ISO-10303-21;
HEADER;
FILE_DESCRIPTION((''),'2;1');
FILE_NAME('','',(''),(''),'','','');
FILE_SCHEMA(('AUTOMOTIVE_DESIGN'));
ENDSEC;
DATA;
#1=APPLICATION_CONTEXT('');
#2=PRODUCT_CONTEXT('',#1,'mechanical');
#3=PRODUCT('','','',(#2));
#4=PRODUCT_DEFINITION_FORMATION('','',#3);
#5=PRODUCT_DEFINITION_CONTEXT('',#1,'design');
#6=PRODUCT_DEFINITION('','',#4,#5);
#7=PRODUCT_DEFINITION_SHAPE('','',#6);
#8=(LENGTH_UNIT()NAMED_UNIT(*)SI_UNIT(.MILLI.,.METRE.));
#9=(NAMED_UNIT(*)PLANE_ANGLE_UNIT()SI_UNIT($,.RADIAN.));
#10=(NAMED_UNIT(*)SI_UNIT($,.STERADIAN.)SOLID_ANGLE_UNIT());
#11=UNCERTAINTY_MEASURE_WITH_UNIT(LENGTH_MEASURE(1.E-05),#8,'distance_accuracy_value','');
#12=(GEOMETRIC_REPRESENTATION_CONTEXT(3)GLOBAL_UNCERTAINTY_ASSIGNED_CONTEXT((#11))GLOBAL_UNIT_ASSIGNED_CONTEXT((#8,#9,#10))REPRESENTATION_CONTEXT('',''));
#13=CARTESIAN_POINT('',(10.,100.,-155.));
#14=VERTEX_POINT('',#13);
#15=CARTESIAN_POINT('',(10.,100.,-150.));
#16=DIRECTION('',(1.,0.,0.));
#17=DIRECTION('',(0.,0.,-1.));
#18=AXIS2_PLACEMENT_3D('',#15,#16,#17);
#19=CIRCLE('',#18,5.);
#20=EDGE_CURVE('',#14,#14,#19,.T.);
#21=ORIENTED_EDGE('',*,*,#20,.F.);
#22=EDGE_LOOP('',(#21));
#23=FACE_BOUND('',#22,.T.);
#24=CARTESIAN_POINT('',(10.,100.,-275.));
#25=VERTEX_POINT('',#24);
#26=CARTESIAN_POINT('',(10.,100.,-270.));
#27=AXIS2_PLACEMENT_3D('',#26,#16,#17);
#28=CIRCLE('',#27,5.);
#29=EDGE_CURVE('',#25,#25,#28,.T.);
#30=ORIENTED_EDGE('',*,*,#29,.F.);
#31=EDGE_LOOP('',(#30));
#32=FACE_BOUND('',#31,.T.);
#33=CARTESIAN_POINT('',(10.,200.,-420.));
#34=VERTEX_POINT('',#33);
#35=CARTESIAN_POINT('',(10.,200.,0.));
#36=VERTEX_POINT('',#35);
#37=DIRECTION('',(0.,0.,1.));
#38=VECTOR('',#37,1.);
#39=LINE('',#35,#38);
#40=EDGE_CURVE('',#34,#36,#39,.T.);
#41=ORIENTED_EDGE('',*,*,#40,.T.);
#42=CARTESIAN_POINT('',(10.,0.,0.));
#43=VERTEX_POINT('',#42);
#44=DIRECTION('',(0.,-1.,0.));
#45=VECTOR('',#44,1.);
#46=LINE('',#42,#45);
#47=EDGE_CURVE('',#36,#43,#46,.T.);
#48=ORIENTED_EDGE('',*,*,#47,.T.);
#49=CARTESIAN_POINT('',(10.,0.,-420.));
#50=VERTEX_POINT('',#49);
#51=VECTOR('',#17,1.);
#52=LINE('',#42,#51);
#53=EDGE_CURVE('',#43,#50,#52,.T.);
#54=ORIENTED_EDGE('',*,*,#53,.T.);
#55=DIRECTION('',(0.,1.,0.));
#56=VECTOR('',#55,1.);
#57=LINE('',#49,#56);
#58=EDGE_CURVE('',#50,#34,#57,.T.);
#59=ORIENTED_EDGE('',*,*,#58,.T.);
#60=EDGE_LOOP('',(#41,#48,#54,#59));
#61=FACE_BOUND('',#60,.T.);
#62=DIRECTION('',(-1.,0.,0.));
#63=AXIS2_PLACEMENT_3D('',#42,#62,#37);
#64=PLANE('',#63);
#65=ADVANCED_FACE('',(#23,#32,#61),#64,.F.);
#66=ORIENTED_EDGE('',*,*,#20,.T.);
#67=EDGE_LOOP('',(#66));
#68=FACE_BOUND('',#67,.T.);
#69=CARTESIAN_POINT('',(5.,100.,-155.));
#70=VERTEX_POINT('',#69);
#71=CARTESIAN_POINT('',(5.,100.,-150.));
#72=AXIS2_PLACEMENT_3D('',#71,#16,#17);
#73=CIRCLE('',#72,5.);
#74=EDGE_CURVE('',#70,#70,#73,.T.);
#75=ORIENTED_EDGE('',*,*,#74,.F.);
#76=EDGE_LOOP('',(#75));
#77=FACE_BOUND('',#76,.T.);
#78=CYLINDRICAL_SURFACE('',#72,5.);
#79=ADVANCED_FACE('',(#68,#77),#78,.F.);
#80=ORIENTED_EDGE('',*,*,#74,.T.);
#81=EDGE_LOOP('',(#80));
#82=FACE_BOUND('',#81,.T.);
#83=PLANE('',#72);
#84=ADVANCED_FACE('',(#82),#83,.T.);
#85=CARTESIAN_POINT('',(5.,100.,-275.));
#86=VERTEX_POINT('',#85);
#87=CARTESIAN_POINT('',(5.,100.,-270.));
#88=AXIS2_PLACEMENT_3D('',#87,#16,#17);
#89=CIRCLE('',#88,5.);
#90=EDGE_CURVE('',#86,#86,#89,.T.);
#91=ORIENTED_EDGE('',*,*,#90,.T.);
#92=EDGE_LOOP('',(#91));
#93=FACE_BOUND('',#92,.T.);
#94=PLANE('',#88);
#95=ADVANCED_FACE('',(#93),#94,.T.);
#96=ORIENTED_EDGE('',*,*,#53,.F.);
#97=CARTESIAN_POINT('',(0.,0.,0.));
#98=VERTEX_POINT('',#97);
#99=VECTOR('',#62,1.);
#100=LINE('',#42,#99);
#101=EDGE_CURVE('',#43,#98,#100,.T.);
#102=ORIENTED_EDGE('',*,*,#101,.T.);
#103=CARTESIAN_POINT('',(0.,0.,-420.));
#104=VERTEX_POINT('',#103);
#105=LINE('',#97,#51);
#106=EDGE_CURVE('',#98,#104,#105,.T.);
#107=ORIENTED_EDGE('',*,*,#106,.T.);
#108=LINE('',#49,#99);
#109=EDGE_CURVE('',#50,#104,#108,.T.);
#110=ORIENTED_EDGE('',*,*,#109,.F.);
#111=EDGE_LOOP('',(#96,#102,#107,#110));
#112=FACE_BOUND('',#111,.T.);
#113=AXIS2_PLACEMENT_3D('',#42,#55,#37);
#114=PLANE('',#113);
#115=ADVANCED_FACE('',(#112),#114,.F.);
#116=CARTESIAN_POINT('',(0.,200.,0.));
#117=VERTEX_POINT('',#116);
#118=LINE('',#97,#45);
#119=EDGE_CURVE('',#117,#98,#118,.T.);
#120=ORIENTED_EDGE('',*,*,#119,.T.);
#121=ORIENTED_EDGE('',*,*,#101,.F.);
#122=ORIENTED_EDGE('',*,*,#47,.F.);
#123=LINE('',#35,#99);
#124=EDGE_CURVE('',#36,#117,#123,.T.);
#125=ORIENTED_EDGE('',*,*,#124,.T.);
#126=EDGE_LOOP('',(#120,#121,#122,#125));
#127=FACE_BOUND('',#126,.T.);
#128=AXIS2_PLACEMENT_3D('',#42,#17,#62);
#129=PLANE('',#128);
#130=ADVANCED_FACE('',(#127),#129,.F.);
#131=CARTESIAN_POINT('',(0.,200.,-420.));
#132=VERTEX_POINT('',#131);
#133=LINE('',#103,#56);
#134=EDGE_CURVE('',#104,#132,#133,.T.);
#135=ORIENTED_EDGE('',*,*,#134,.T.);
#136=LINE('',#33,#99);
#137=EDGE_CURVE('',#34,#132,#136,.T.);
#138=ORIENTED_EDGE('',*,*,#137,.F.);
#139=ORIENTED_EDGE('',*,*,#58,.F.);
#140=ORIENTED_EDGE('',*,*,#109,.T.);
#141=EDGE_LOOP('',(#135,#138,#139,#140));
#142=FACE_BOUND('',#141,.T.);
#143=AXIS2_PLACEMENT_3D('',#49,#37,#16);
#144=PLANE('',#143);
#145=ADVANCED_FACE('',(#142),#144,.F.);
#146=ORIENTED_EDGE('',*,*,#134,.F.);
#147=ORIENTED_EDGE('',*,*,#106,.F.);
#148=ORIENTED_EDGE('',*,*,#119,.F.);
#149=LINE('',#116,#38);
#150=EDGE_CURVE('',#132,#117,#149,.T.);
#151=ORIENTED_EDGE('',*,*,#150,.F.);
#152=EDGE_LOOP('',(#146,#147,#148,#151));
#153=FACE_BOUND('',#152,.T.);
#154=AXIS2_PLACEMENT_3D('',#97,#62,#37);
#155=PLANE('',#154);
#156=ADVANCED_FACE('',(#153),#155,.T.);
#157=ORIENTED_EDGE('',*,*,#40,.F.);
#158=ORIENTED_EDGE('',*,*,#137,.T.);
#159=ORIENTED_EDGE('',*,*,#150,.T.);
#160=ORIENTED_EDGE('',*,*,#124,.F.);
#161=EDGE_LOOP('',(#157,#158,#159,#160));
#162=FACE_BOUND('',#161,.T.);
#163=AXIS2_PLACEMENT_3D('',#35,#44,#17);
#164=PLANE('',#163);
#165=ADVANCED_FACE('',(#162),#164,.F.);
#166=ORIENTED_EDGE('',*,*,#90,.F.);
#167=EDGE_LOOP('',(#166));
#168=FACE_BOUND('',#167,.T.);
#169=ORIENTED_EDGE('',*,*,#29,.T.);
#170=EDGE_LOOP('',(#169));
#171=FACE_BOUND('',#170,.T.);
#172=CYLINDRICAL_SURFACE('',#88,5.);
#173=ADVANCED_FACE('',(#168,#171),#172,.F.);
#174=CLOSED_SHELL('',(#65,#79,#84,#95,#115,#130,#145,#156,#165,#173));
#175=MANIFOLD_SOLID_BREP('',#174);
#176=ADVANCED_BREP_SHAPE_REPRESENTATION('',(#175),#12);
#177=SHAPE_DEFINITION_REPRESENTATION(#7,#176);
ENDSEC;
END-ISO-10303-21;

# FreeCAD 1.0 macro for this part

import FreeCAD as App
import Part
import Sketcher
from FreeCAD import Vector
Q = App.Units.Quantity


def add_polygon(sketch, points):
    """Adds a closed chain of lines whose ends are joined by coincident constraints."""
    first, n = sketch.GeometryCount, len(points)
    for a, b in zip(points, points[1:] + points[:1]):
        sketch.addGeometry(Part.LineSegment(App.Vector(*a, 0), App.Vector(*b, 0)), False)
    for i in range(n):
        sketch.addConstraint(Sketcher.Constraint("Coincident", first + i, 2, first + (i + 1) % n, 1))

doc = App.newDocument("Part")
body = doc.addObject("PartDesign::Body", "Body")

# Sketch on YZ plane
sketch1 = body.newObject("Sketcher::SketchObject", "Sketch")
sketch1.AttachmentSupport = (doc.getObject("YZ_Plane"), [""])
sketch1.MapMode = "FlatFace"
add_polygon(sketch1, [(200, 0), (0, 0), (0, -420), (200, -420)])  # lines 0-3
sketch1.addConstraint([
    Sketcher.Constraint("Horizontal", 0),
    Sketcher.Constraint("Vertical", 1),
    Sketcher.Constraint("Horizontal", 2),
    Sketcher.Constraint("Vertical", 3),
    Sketcher.Constraint("Coincident", 0, 2, -1, 1),
    Sketcher.Constraint("DistanceX", 0, 2, 0, 1, Q("200 mm")),
    Sketcher.Constraint("DistanceY", 1, 2, 1, 1, Q("420 mm")),
])
pad1 = body.newObject("PartDesign::Pad", "Pad")
pad1.Profile = sketch1
pad1.Length = 10

# Sketch on YZ plane
sketch2 = body.newObject("Sketcher::SketchObject", "Sketch001")
sketch2.AttachmentSupport = (doc.getObject("YZ_Plane"), [""])
sketch2.MapMode = "FlatFace"
sketch2.AttachmentOffset = App.Placement(Vector(0, 0, 10), App.Rotation())
sketch2.addGeometry([
    Part.Circle(Vector(100, -150, 0), Vector(0, 0, 1), 5),
    Part.Circle(Vector(100, -270, 0), Vector(0, 0, 1), 5),
], False)
sketch2.addConstraint([
    Sketcher.Constraint("Equal", 0, 1),
    Sketcher.Constraint("Vertical", 0, 3, 1, 3),
    Sketcher.Constraint("Diameter", 0, Q("10 mm")),
    Sketcher.Constraint("DistanceX", -1, 1, 0, 3, Q("100 mm")),
    Sketcher.Constraint("DistanceY", 0, 3, -1, 1, Q("150 mm")),
    Sketcher.Constraint("DistanceY", 1, 3, -1, 1, Q("270 mm")),
])
pocket1 = body.newObject("PartDesign::Pocket", "Pocket")
pocket1.Profile = sketch2
pocket1.Length = 5

doc.recompute()
